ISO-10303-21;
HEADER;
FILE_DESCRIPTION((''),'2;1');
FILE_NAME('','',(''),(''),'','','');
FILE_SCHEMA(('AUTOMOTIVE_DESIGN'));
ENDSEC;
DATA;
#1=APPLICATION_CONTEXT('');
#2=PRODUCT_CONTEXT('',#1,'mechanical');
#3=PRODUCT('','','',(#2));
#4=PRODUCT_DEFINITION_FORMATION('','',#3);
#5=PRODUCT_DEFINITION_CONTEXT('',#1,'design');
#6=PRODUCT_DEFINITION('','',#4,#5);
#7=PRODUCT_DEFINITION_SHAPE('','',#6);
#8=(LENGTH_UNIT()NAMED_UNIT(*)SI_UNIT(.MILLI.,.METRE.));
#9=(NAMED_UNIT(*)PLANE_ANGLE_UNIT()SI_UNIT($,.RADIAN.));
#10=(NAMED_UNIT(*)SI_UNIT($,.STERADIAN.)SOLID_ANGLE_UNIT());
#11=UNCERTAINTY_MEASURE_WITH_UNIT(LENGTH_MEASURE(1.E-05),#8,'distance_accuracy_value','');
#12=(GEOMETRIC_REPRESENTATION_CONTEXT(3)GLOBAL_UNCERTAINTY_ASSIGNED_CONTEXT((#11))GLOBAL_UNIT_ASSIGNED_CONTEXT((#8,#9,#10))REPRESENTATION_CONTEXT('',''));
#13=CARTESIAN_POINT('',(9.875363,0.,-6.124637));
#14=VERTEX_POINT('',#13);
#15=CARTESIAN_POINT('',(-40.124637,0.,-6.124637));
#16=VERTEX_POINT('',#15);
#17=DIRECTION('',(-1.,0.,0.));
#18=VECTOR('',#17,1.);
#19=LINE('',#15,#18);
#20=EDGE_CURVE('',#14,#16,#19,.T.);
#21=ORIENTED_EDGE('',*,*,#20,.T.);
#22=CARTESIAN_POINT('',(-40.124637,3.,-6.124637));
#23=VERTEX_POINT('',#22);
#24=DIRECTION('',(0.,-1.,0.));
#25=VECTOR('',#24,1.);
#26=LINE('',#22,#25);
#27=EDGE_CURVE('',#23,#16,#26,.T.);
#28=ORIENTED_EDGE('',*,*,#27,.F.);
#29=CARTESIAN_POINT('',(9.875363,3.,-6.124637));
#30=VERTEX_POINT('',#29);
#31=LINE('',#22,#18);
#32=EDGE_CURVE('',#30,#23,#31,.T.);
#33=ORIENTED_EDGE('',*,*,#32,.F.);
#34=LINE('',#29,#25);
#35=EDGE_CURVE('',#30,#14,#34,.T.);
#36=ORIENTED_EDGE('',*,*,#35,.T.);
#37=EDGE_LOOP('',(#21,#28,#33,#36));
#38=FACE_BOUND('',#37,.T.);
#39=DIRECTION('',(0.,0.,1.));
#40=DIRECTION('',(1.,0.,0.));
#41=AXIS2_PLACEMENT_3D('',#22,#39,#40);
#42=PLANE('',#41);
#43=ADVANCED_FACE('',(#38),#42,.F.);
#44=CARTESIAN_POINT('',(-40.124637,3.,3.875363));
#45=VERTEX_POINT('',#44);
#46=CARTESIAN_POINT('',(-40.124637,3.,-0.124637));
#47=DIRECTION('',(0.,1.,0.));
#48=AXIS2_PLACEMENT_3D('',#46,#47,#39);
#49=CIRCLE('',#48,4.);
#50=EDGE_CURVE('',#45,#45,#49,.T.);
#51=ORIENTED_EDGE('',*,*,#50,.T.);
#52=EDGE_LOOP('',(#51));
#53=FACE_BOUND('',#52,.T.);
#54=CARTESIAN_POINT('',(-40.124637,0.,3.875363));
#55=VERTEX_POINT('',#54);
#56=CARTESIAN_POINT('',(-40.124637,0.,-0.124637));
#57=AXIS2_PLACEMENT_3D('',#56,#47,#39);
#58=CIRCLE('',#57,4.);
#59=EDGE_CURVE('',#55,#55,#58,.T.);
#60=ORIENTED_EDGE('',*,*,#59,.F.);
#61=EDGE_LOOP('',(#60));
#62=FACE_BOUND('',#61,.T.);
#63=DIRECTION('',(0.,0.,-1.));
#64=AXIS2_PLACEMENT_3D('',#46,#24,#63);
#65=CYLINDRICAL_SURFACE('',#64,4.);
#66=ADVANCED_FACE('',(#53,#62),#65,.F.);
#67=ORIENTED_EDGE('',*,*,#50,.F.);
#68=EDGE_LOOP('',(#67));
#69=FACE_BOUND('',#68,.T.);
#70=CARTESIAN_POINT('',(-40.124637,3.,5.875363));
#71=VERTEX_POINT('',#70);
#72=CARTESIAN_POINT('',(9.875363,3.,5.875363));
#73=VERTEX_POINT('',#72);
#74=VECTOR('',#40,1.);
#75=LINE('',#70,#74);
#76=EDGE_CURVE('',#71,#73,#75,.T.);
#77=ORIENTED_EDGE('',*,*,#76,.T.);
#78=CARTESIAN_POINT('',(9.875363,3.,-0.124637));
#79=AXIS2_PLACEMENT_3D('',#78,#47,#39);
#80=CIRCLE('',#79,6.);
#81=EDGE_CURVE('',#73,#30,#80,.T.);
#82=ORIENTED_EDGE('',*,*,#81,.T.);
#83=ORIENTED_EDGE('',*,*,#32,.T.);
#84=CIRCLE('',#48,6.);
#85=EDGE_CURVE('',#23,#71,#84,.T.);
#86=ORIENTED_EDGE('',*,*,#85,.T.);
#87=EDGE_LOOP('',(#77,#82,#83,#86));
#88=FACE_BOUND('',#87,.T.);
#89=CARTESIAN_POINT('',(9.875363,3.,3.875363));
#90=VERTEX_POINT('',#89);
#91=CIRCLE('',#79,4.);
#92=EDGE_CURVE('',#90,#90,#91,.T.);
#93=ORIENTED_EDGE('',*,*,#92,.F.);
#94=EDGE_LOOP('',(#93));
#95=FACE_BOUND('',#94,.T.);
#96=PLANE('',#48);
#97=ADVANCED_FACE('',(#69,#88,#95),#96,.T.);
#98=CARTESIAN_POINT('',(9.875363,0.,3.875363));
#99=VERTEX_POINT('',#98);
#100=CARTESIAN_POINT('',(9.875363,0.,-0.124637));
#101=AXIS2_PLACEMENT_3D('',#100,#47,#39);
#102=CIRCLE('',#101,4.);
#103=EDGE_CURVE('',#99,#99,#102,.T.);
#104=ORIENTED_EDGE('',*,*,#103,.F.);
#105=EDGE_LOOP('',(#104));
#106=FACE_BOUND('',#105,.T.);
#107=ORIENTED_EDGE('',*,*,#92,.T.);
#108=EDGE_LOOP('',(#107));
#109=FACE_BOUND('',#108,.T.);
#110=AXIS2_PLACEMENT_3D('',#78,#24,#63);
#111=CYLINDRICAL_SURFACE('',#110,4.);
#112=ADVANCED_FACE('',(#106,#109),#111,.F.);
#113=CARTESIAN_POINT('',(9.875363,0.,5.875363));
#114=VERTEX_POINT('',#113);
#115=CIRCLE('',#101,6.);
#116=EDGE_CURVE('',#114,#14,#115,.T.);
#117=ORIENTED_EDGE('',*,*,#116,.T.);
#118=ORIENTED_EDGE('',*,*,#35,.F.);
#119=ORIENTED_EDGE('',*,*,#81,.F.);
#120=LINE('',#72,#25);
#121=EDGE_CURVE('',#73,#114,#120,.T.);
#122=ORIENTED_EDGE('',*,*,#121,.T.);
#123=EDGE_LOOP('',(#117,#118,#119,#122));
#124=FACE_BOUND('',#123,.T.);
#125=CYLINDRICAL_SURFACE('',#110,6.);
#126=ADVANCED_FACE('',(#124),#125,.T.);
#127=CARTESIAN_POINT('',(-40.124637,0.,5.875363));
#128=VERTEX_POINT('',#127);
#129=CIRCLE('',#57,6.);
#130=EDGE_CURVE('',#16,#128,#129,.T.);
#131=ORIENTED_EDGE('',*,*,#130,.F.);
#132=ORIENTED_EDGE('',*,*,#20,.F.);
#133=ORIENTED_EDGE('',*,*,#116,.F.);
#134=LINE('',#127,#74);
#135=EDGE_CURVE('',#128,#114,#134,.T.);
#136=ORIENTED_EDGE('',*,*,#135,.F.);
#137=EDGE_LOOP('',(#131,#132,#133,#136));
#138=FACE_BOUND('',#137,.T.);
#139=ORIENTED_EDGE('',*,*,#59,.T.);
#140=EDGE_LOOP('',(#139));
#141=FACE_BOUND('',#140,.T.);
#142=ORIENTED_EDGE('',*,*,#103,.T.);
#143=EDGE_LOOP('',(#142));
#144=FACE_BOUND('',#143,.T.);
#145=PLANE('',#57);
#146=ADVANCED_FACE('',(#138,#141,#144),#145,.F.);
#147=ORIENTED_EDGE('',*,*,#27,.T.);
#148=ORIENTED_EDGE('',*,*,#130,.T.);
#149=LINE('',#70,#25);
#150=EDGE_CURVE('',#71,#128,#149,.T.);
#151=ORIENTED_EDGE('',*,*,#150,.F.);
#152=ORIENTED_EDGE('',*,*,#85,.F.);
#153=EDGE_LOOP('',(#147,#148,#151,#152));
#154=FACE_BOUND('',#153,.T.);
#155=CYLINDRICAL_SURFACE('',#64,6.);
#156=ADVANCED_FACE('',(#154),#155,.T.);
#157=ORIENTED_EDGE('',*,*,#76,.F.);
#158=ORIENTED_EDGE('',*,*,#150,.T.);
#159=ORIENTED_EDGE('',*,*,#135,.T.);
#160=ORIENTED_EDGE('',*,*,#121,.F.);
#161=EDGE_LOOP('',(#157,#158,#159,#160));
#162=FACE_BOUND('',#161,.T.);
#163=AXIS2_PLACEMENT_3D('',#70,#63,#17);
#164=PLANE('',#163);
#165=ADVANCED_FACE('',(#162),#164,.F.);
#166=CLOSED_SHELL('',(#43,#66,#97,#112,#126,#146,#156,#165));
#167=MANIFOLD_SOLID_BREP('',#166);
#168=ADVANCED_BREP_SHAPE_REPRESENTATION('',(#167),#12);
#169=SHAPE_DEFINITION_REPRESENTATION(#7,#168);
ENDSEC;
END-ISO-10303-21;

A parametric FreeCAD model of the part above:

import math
import FreeCAD as App
import Part
import Sketcher
from FreeCAD import Vector

doc = App.newDocument("Part")
body = doc.addObject("PartDesign::Body", "Body")

sketch1 = body.newObject("Sketcher::SketchObject", "Sketch")
sketch1.AttachmentSupport = (doc.getObject("XZ_Plane"), [""])
sketch1.MapMode = "FlatFace"
sketch1.addGeometry([
    Part.LineSegment(Vector(9.875363, -6.124637, 0), Vector(-40.124637, -6.124637, 0)),
    Part.ArcOfCircle(Part.Circle(Vector(-40.124637, -0.124637, 0), Vector(0, 0, 1), 6), math.radians(90), math.radians(270)),
    Part.LineSegment(Vector(-40.124637, 5.875363, 0), Vector(9.875363, 5.875363, 0)),
    Part.ArcOfCircle(Part.Circle(Vector(9.875363, -0.124637, 0), Vector(0, 0, 1), 6), math.radians(-90), math.radians(90)),
    Part.Circle(Vector(9.875363, -0.124637, 0), Vector(0, 0, 1), 4),
    Part.Circle(Vector(-40.124637, -0.124637, 0), Vector(0, 0, 1), 4),
], False)
sketch1.addConstraint([
    Sketcher.Constraint("Tangent", 0, 2, 1, 2),
    Sketcher.Constraint("Tangent", 1, 1, 2, 1),
    Sketcher.Constraint("Tangent", 2, 2, 3, 2),
    Sketcher.Constraint("Tangent", 3, 1, 0, 1),
    Sketcher.Constraint("Horizontal", 0),
    Sketcher.Constraint("Horizontal", 2),
    Sketcher.Constraint("Coincident", 4, 3, 3, 3),
    Sketcher.Constraint("Coincident", 5, 3, 1, 3),
    Sketcher.Constraint("Equal", 4, 5),
    Sketcher.Constraint("Diameter", 4, 8.0),
    Sketcher.Constraint("Radius", 1, 6.0),
    Sketcher.Constraint("DistanceX", 0, 2, 0, 1, 50.0),
    Sketcher.Constraint("DistanceX", 1, 3, -1, 1, 40.124637),
    Sketcher.Constraint("DistanceY", 1, 3, -1, 1, 0.124637),
])
pad1 = body.newObject("PartDesign::Pad", "Pad")
pad1.Profile = sketch1
pad1.Length = 3
pad1.Reversed = True

doc.recompute()
